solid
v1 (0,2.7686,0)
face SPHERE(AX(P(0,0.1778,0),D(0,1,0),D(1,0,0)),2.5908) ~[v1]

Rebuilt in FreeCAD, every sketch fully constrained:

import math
import FreeCAD as App
import Part
import Sketcher

V = App.Vector
Q = App.Units.Quantity

doc = App.newDocument("Part")
body = doc.addObject("PartDesign::Body", "Body")

# Sketch on XY plane
sketch1 = body.newObject("Sketcher::SketchObject", "Sketch")
sketch1.AttachmentSupport = (doc.getObject("XY_Plane"), [""])
sketch1.MapMode = "FlatFace"
sketch1.addGeometry([
    Part.LineSegment(V(0, 2.7686, 0), V(0, -2.413, 0)),
    Part.ArcOfCircle(Part.Circle(V(0, 0.1778, 0), V(0, 0, 1), 2.5908), math.radians(-90), math.radians(90)),
], False)
sketch1.addConstraint([
    Sketcher.Constraint("Coincident", 0, 1, 1, 2),
    Sketcher.Constraint("Coincident", 1, 1, 0, 2),
    Sketcher.Constraint("Vertical", 0),
    Sketcher.Constraint("PointOnObject", 1, 3, -2),
    Sketcher.Constraint("PointOnObject", 0, 1, -2),
    Sketcher.Constraint("Radius", 1, Q("0.102 in")),
    Sketcher.Constraint("DistanceY", -1, 1, 1, 3, Q("0.007 in")),
])
revolution = body.newObject("PartDesign::Revolution", "Revolution")
revolution.Profile = sketch1
revolution.ReferenceAxis = (sketch1, ["V_Axis"])
revolution.Angle = 360

doc.recompute()
